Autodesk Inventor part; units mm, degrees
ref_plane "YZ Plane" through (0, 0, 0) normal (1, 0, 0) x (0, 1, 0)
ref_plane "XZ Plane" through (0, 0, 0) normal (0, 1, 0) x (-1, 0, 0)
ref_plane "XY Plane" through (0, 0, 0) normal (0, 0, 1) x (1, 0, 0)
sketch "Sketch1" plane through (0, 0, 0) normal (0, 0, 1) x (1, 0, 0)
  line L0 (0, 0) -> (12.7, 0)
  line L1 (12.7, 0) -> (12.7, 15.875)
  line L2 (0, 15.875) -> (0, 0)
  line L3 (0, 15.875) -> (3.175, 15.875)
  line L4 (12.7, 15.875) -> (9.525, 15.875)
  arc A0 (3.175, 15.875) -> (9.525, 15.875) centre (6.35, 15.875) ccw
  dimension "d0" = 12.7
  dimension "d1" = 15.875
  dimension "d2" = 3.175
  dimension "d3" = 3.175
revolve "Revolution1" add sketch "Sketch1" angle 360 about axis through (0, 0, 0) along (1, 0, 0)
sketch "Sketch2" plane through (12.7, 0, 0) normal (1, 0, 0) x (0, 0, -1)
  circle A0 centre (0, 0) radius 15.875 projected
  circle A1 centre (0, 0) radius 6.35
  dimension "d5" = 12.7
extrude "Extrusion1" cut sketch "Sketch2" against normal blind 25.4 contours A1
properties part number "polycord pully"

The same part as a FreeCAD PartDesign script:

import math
import FreeCAD as App
import Part
import Sketcher
from FreeCAD import Vector
Q = App.Units.Quantity

doc = App.newDocument("Part")
body = doc.addObject("PartDesign::Body", "Body")

sketch1 = doc.addObject("Sketcher::SketchObject", "Sketch")
body.addObject(sketch1)
sketch1.AttachmentSupport = (doc.XY_Plane, [""])
sketch1.MapMode = "FlatFace"
sketch1.addGeometry(Part.LineSegment(Vector(0, 15.9, 0), Vector(0, 0, 0)), False)
sketch1.addGeometry(Part.LineSegment(Vector(0, 0, 0), Vector(12.7, 0, 0)), False)
sketch1.addGeometry(Part.LineSegment(Vector(12.7, 0, 0), Vector(12.7, 15.9, 0)), False)
sketch1.addGeometry(Part.LineSegment(Vector(12.7, 15.9, 0), Vector(9.5, 15.9, 0)), False)
sketch1.addGeometry(Part.ArcOfCircle(Part.Circle(Vector(6.3, 15.9, 0), Vector(0, 0, 1), 3.2), math.radians(180), math.radians(360)), False)
sketch1.addGeometry(Part.LineSegment(Vector(3.2, 15.9, 0), Vector(0, 15.9, 0)), False)
sketch1.addConstraint(Sketcher.Constraint("Coincident", 0, 2, 1, 1))
sketch1.addConstraint(Sketcher.Constraint("Coincident", 1, 2, 2, 1))
sketch1.addConstraint(Sketcher.Constraint("Coincident", 2, 2, 3, 1))
sketch1.addConstraint(Sketcher.Constraint("Coincident", 3, 2, 4, 2))
sketch1.addConstraint(Sketcher.Constraint("Coincident", 4, 1, 5, 1))
sketch1.addConstraint(Sketcher.Constraint("Coincident", 5, 2, 0, 1))
sketch1.addConstraint(Sketcher.Constraint("Vertical", 0))
sketch1.addConstraint(Sketcher.Constraint("Horizontal", 1))
sketch1.addConstraint(Sketcher.Constraint("Vertical", 2))
sketch1.addConstraint(Sketcher.Constraint("Horizontal", 3))
sketch1.addConstraint(Sketcher.Constraint("Horizontal", 5))
sketch1.addConstraint(Sketcher.Constraint("Coincident", 0, 2, -1, 1))
sketch1.addConstraint(Sketcher.Constraint("Horizontal", 4, 3, 2, 2))
sketch1.addConstraint(Sketcher.Constraint("Horizontal", 3, 2, 4, 1))
sketch1.addConstraint(Sketcher.Constraint("Equal", 3, 5))
sketch1.addConstraint(Sketcher.Constraint("DistanceX", 1, 1, 1, 2, Q("0.5 in")))
sketch1.addConstraint(Sketcher.Constraint("Radius", 4, Q("0.125 in")))
sketch1.addConstraint(Sketcher.Constraint("DistanceY", 0, 2, 0, 1, Q("0.625 in")))
revolution = doc.addObject("PartDesign::Revolution", "Revolution")
body.addObject(revolution)
revolution.Profile = sketch1
revolution.ReferenceAxis = (sketch1, ["H_Axis"])
revolution.Angle = 360

sketch2 = doc.addObject("Sketcher::SketchObject", "Sketch001")
body.addObject(sketch2)
sketch2.AttachmentSupport = (doc.YZ_Plane, [""])
sketch2.MapMode = "FlatFace"
sketch2.AttachmentOffset = App.Placement(Vector(0, 0, 0.5 * 25.4), App.Rotation())
sketch2.addGeometry(Part.Circle(Vector(0, 0, 0), Vector(0, 0, 1), 6), False)
sketch2.addConstraint(Sketcher.Constraint("Coincident", 0, 3, -1, 1))
sketch2.addConstraint(Sketcher.Constraint("Diameter", 0, Q("0.5 in")))
pocket1 = doc.addObject("PartDesign::Pocket", "Pocket")
body.addObject(pocket1)
pocket1.Profile = sketch2
pocket1.Length = Q("1 in")

doc.recompute()
